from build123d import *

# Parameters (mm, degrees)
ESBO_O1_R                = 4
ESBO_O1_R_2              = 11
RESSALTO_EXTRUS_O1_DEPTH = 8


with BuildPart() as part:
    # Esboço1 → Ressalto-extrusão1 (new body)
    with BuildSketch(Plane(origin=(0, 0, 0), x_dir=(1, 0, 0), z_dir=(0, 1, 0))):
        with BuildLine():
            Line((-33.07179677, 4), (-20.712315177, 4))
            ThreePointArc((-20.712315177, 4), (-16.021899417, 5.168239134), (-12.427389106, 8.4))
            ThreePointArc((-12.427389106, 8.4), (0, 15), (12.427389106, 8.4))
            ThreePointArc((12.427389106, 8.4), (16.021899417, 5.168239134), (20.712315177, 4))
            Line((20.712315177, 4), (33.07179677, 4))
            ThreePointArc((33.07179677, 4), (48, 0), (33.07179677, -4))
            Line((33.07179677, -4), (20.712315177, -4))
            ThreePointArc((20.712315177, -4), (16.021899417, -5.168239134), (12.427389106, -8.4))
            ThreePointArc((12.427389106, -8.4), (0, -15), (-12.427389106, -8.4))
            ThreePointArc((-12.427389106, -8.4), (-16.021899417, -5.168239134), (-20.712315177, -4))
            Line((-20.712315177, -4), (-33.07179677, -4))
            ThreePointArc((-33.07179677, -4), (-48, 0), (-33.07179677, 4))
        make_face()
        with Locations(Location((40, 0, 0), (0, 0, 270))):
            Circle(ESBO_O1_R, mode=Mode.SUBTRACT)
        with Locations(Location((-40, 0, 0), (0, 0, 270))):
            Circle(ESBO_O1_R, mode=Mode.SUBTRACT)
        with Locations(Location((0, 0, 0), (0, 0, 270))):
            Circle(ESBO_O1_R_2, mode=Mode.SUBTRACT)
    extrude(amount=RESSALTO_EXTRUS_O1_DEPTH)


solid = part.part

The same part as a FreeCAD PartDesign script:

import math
import FreeCAD as App
import Part
import Sketcher
from FreeCAD import Vector

doc = App.newDocument("Part")
body = doc.addObject("PartDesign::Body", "Body")

# Sketch on XZ plane
sketch1 = body.newObject("Sketcher::SketchObject", "Sketch")
sketch1.AttachmentSupport = (doc.getObject("XZ_Plane"), [""])
sketch1.MapMode = "FlatFace"
sketch1.addGeometry([
    Part.LineSegment(Vector(-20.712315, -4, 0), Vector(-33.071797, -4, 0)),  # 0
    Part.ArcOfCircle(Part.Circle(Vector(-40, 0, 0), Vector(0, 0, 1), 8), math.radians(30), math.radians(330)),  # 1
    Part.LineSegment(Vector(-33.071797, 4, 0), Vector(-20.712315, 4, 0)),  # 2
    Part.ArcOfCircle(Part.Circle(Vector(-20.712315, 14, 0), Vector(0, 0, 1), 10), math.radians(-90), math.radians(-34.055798)),  # 3
    Part.ArcOfCircle(Part.Circle(Vector(0, 0, 0), Vector(0, 0, 1), 15), math.radians(34.055798), math.radians(145.944202)),  # 4
    Part.ArcOfCircle(Part.Circle(Vector(20.712315, 14, 0), Vector(0, 0, 1), 10), math.radians(-145.944202), math.radians(-90)),  # 5
    Part.LineSegment(Vector(20.712315, 4, 0), Vector(33.071797, 4, 0)),  # 6
    Part.ArcOfCircle(Part.Circle(Vector(40, 0, 0), Vector(0, 0, 1), 8), math.radians(-150), math.radians(150)),  # 7
    Part.LineSegment(Vector(33.071797, -4, 0), Vector(20.712315, -4, 0)),  # 8
    Part.ArcOfCircle(Part.Circle(Vector(20.712315, -14, 0), Vector(0, 0, 1), 10), math.radians(90), math.radians(145.944202)),  # 9
    Part.ArcOfCircle(Part.Circle(Vector(0, 0, 0), Vector(0, 0, 1), 15), math.radians(-145.944202), math.radians(-34.055798)),  # 10
    Part.ArcOfCircle(Part.Circle(Vector(-20.712315, -14, 0), Vector(0, 0, 1), 10), math.radians(34.055798), math.radians(90)),  # 11
    Part.Circle(Vector(40, 0, 0), Vector(0, 0, 1), 4),  # 12
    Part.Circle(Vector(0, 0, 0), Vector(0, 0, 1), 11),  # 13
    Part.Circle(Vector(-40, 0, 0), Vector(0, 0, 1), 4),  # 14
], False)
sketch1.addConstraint([
    Sketcher.Constraint("Coincident", 0, 2, 1, 2),
    Sketcher.Constraint("Coincident", 1, 1, 2, 1),
    Sketcher.Constraint("Tangent", 2, 2, 3, 1),
    Sketcher.Constraint("Tangent", 3, 2, 4, 2),
    Sketcher.Constraint("Tangent", 4, 1, 5, 1),
    Sketcher.Constraint("Tangent", 5, 2, 6, 1),
    Sketcher.Constraint("Coincident", 6, 2, 7, 2),
    Sketcher.Constraint("Coincident", 7, 1, 8, 1),
    Sketcher.Constraint("Tangent", 8, 2, 9, 1),
    Sketcher.Constraint("Tangent", 9, 2, 10, 2),
    Sketcher.Constraint("Tangent", 10, 1, 11, 1),
    Sketcher.Constraint("Tangent", 11, 2, 0, 1),
    Sketcher.Constraint("Horizontal", 0),
    Sketcher.Constraint("Horizontal", 2),
    Sketcher.Constraint("Horizontal", 6),
    Sketcher.Constraint("Horizontal", 8),
    Sketcher.Constraint("Coincident", 4, 3, -1, 1),
    Sketcher.Constraint("Coincident", 10, 3, -1, 1),
    Sketcher.Constraint("Coincident", 13, 3, -1, 1),
    Sketcher.Constraint("Coincident", 12, 3, 7, 3),
    Sketcher.Constraint("Coincident", 14, 3, 1, 3),
    Sketcher.Constraint("Equal", 3, 5),
    Sketcher.Constraint("Equal", 1, 7),
    Sketcher.Constraint("Equal", 5, 9),
    Sketcher.Constraint("Equal", 4, 10),
    Sketcher.Constraint("Equal", 9, 11),
    Sketcher.Constraint("Equal", 12, 14),
    Sketcher.Constraint("Symmetric", 1, 3, 7, 3, -1, 1),
    Sketcher.Constraint("Symmetric", 1, 1, 6, 2, -2),
    Sketcher.Constraint("Horizontal", 9, 3, 11, 3),
    Sketcher.Constraint("Vertical", 5, 3, 9, 3),
    Sketcher.Constraint("Diameter", 12, 8.0),
    Sketcher.Constraint("Diameter", 13, 22.0),
    Sketcher.Constraint("Radius", 1, 8.0),
    Sketcher.Constraint("Radius", 3, 10.0),
    Sketcher.Constraint("Radius", 4, 15.0),
    Sketcher.Constraint("DistanceX", 1, 3, -1, 1, 40.0),
    Sketcher.Constraint("DistanceY", -1, 1, 3, 3, 14.0),
])
pad1 = body.newObject("PartDesign::Pad", "Pad")
pad1.Profile = sketch1
pad1.Length = 8
pad1.Reversed = True

doc.recompute()
